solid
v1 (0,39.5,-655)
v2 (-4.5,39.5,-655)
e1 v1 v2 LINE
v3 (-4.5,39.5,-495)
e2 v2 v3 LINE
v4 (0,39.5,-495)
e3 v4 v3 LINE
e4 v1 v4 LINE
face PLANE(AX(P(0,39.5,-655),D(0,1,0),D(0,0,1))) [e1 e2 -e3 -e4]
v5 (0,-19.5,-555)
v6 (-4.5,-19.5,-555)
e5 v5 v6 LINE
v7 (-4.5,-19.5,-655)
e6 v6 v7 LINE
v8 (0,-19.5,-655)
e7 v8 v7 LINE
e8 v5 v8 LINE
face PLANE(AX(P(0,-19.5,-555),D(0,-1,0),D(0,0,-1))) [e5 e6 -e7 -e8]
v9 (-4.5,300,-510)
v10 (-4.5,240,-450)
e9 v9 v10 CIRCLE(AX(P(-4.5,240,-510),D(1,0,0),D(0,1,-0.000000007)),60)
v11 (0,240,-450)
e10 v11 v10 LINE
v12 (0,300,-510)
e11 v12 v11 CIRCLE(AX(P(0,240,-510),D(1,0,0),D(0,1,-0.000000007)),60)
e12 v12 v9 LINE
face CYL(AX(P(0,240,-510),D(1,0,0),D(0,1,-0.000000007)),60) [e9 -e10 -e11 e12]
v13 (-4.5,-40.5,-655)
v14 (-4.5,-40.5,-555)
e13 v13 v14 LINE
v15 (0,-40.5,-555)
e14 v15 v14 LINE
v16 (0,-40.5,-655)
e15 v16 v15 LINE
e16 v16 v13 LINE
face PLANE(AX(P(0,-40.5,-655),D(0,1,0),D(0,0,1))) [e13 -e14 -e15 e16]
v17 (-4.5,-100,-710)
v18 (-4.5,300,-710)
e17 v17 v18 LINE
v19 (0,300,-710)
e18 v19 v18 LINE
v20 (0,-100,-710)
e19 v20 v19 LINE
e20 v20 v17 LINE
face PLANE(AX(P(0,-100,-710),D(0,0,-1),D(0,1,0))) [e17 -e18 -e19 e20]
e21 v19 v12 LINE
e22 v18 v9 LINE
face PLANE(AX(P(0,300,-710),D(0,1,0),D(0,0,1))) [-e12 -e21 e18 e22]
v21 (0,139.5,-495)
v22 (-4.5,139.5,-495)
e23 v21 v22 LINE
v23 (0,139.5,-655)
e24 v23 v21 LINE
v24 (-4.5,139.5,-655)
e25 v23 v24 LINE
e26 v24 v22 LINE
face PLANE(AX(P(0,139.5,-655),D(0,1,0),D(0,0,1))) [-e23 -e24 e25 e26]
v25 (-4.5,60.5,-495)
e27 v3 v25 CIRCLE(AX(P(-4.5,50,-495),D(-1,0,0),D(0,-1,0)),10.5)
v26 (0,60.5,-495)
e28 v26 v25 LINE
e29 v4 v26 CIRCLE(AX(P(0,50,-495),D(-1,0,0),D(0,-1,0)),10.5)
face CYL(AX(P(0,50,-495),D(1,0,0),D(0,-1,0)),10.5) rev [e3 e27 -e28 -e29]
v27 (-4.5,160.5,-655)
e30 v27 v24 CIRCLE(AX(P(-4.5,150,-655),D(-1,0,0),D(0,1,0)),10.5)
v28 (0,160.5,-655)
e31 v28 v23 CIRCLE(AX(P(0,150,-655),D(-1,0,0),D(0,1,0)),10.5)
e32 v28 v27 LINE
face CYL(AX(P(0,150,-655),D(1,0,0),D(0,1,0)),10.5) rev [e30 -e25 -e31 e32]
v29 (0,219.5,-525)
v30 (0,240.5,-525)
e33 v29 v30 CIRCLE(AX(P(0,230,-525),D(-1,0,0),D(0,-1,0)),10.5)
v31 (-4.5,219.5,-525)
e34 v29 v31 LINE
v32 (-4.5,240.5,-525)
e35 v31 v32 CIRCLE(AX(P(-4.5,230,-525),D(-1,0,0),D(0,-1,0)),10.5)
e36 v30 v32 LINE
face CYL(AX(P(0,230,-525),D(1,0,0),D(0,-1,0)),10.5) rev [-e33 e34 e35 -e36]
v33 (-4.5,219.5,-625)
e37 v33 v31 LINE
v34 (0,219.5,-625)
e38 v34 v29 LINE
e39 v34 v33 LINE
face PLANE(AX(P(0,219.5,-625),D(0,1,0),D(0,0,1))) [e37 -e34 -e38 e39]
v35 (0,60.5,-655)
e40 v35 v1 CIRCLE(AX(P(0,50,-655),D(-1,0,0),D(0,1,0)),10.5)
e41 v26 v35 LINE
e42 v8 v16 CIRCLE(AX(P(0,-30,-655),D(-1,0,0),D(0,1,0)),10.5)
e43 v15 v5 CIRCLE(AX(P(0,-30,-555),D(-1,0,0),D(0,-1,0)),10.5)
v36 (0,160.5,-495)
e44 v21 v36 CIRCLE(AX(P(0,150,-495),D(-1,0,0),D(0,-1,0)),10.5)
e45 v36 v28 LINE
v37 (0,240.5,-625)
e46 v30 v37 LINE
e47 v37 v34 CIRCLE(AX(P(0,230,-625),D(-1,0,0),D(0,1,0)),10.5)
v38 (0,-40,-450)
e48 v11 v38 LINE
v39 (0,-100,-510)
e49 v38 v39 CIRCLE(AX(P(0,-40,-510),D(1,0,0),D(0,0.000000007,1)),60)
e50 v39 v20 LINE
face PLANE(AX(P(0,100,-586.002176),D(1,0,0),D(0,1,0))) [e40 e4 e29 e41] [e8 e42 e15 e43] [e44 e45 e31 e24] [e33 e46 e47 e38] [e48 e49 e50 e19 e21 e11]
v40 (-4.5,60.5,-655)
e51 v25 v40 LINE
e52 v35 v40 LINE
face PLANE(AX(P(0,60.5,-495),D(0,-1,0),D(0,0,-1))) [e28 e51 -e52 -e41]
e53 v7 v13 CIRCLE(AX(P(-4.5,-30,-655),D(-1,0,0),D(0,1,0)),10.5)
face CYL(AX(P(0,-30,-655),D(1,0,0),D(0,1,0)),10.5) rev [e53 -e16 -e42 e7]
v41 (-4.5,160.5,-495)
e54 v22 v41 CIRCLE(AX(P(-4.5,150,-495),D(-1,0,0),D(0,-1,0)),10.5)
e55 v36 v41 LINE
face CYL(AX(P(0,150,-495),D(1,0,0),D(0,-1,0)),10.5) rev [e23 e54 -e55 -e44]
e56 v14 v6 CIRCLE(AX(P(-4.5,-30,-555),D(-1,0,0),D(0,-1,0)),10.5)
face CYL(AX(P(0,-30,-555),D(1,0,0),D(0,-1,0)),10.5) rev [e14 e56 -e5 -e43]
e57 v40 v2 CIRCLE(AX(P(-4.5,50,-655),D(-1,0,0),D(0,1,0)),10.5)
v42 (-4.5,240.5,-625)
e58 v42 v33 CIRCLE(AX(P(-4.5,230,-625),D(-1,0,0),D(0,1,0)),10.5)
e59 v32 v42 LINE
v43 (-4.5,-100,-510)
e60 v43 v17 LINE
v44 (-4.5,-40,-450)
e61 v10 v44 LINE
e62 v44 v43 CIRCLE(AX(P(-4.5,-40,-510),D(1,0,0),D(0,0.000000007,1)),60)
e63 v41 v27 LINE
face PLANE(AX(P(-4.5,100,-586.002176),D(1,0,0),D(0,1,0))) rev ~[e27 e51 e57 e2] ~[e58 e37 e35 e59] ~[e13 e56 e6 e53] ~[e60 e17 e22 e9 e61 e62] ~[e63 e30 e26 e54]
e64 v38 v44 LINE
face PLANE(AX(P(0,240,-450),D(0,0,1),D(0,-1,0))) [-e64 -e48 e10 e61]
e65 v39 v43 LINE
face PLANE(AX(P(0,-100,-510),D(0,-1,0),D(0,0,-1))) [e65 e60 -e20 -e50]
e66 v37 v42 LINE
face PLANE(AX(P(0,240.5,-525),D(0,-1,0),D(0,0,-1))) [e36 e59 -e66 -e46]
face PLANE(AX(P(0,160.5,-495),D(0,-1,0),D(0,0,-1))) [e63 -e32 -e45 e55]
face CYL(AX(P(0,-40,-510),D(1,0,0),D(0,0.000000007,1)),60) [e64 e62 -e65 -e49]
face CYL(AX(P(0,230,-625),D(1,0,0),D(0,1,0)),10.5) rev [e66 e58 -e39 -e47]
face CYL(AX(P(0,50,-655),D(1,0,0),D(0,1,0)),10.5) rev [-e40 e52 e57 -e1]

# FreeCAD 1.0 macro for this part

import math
import FreeCAD as App
import Part
import Sketcher

V = App.Vector

doc = App.newDocument("Part")
body = doc.addObject("PartDesign::Body", "Body")

# Sketch on YZ plane
sketch1 = doc.addObject("Sketcher::SketchObject", "Sketch")
body.addObject(sketch1)
sketch1.AttachmentSupport = (doc.YZ_Plane, [""])
sketch1.MapMode = "FlatFace"
sketch1.addGeometry([
    Part.LineSegment(V(-100, -710, 0), V(300, -710, 0)),  # 0
    Part.LineSegment(V(300, -710, 0), V(300, -510, 0)),  # 1
    Part.ArcOfCircle(Part.Circle(V(240, -510, 0), V(0, 0, 1), 60), math.radians(0), math.radians(90)),  # 2
    Part.LineSegment(V(240, -450, 0), V(-40, -450, 0)),  # 3
    Part.ArcOfCircle(Part.Circle(V(-40, -510, 0), V(0, 0, 1), 60), math.radians(90), math.radians(180)),  # 4
    Part.LineSegment(V(-100, -510, 0), V(-100, -710, 0)),  # 5
    Part.LineSegment(V(-20, -555, 0), V(-20, -655, 0)),  # 6
    Part.ArcOfCircle(Part.Circle(V(-30, -655, 0), V(0, 0, 1), 10), math.radians(180), math.radians(360)),  # 7
    Part.LineSegment(V(-40, -655, 0), V(-40, -555, 0)),  # 8
    Part.ArcOfCircle(Part.Circle(V(-30, -555, 0), V(0, 0, 1), 10), math.radians(0), math.radians(180)),  # 9
    Part.ArcOfCircle(Part.Circle(V(50, -655, 0), V(0, 0, 1), 10), math.radians(180), math.radians(360)),  # 10
    Part.LineSegment(V(40, -655, 0), V(40, -495, 0)),  # 11
    Part.ArcOfCircle(Part.Circle(V(50, -495, 0), V(0, 0, 1), 10), math.radians(0), math.radians(180)),  # 12
    Part.LineSegment(V(60, -495, 0), V(60, -655, 0)),  # 13
    Part.ArcOfCircle(Part.Circle(V(150, -655, 0), V(0, 0, 1), 10), math.radians(180), math.radians(360)),  # 14
    Part.LineSegment(V(140, -655, 0), V(140, -495, 0)),  # 15
    Part.ArcOfCircle(Part.Circle(V(150, -495, 0), V(0, 0, 1), 10), math.radians(0), math.radians(180)),  # 16
    Part.LineSegment(V(160, -495, 0), V(160, -655, 0)),  # 17
    Part.LineSegment(V(240, -525, 0), V(240, -625, 0)),  # 18
    Part.ArcOfCircle(Part.Circle(V(230, -625, 0), V(0, 0, 1), 10), math.radians(180), math.radians(360)),  # 19
    Part.LineSegment(V(220, -625, 0), V(220, -525, 0)),  # 20
    Part.ArcOfCircle(Part.Circle(V(230, -525, 0), V(0, 0, 1), 10), math.radians(0), math.radians(180)),  # 21
], False)
sketch1.addConstraint([
    Sketcher.Constraint("Coincident", 0, 2, 1, 1),
    Sketcher.Constraint("Tangent", 1, 2, 2, 1),
    Sketcher.Constraint("Tangent", 2, 2, 3, 1),
    Sketcher.Constraint("Tangent", 3, 2, 4, 1),
    Sketcher.Constraint("Tangent", 4, 2, 5, 1),
    Sketcher.Constraint("Coincident", 5, 2, 0, 1),
    Sketcher.Constraint("Tangent", 6, 2, 7, 2),
    Sketcher.Constraint("Tangent", 7, 1, 8, 1),
    Sketcher.Constraint("Tangent", 8, 2, 9, 2),
    Sketcher.Constraint("Tangent", 9, 1, 6, 1),
    Sketcher.Constraint("Tangent", 10, 1, 11, 1),
    Sketcher.Constraint("Tangent", 11, 2, 12, 2),
    Sketcher.Constraint("Tangent", 12, 1, 13, 1),
    Sketcher.Constraint("Tangent", 13, 2, 10, 2),
    Sketcher.Constraint("Tangent", 14, 1, 15, 1),
    Sketcher.Constraint("Tangent", 15, 2, 16, 2),
    Sketcher.Constraint("Tangent", 16, 1, 17, 1),
    Sketcher.Constraint("Tangent", 17, 2, 14, 2),
    Sketcher.Constraint("Tangent", 18, 2, 19, 2),
    Sketcher.Constraint("Tangent", 19, 1, 20, 1),
    Sketcher.Constraint("Tangent", 20, 2, 21, 2),
    Sketcher.Constraint("Tangent", 21, 1, 18, 1),
    Sketcher.Constraint("Horizontal", 0),
    Sketcher.Constraint("Vertical", 1),
    Sketcher.Constraint("Horizontal", 3),
    Sketcher.Constraint("Vertical", 5),
    Sketcher.Constraint("Vertical", 6),
    Sketcher.Constraint("Vertical", 8),
    Sketcher.Constraint("Vertical", 11),
    Sketcher.Constraint("Vertical", 13),
    Sketcher.Constraint("Vertical", 15),
    Sketcher.Constraint("Vertical", 17),
    Sketcher.Constraint("Vertical", 18),
    Sketcher.Constraint("Vertical", 20),
    Sketcher.Constraint("Equal", 2, 4),
    Sketcher.Constraint("Equal", 9, 10),
    Sketcher.Constraint("Equal", 12, 14),
    Sketcher.Constraint("Equal", 16, 19),
    Sketcher.Constraint("Horizontal", 7, 3, 10, 3),
    Sketcher.Constraint("Horizontal", 10, 3, 14, 3),
    Sketcher.Constraint("Horizontal", 12, 3, 16, 3),
    Sketcher.Constraint("Equal", 8, 18),
    Sketcher.Constraint("Radius", 2, 60.0),
    Sketcher.Constraint("Radius", 7, 10.5),
    Sketcher.Constraint("DistanceX", 0, 1, 0, 2, 400.0),
    Sketcher.Constraint("DistanceY", 1, 1, 1, 2, 200.0),
    Sketcher.Constraint("DistanceY", 6, 2, 6, 1, 100.0),
    Sketcher.Constraint("DistanceY", 11, 1, 11, 2, 160.0),
    Sketcher.Constraint("DistanceX", -1, 1, 2, 3, 240.0),
    Sketcher.Constraint("DistanceY", 2, 3, -1, 1, 510.0),
    Sketcher.Constraint("DistanceX", 7, 3, -1, 1, 30.0),
    Sketcher.Constraint("DistanceY", 7, 3, -1, 1, 655.0),
    Sketcher.Constraint("DistanceX", -1, 1, 10, 3, 50.0),
    Sketcher.Constraint("DistanceX", -1, 1, 14, 3, 150.0),
    Sketcher.Constraint("DistanceX", -1, 1, 19, 3, 230.0),
    Sketcher.Constraint("DistanceY", 19, 3, -1, 1, 625.0),
])
pad1 = doc.addObject("PartDesign::Pad", "Pad")
body.addObject(pad1)
pad1.Profile = sketch1
pad1.Length = 4.5
pad1.Reversed = True

doc.recompute()
